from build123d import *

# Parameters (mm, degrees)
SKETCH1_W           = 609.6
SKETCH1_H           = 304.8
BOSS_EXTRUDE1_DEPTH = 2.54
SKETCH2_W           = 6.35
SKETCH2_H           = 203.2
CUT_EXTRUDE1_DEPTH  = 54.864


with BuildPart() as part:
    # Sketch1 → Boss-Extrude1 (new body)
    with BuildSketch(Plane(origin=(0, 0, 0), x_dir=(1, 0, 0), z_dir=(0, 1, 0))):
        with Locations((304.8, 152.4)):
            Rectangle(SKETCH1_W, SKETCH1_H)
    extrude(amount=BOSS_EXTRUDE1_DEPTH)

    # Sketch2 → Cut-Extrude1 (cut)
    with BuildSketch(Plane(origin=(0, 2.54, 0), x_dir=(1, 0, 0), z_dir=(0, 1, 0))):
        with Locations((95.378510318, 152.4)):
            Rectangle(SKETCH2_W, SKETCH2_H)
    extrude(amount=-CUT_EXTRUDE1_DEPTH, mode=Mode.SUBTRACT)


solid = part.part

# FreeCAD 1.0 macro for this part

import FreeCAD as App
import Part
import Sketcher
Q = App.Units.Quantity

doc = App.newDocument("Part")
params = doc.addObject("Spreadsheet::Sheet", "Params")
for row, (alias, value) in enumerate([
    ("sketch1_width", "24 in"),
    ("sketch1_height", "12 in"),
    ("pad1_length", "0.1 in"),
    ("sketch2_height", "8 in"),
    ("sketch2_width", "0.25 in"),
    ("pocket1_length", "2.16 in"),
], start=1):
    params.set(f"A{row}", alias)
    params.set(f"B{row}", "=" + value)
    params.setAlias(f"B{row}", alias)

body = doc.addObject("PartDesign::Body", "Body")

# Sketch on XZ plane
sketch1 = body.newObject("Sketcher::SketchObject", "Sketch")
sketch1.AttachmentSupport = (doc.getObject("XZ_Plane"), [""])
sketch1.MapMode = "FlatFace"
sketch1.addGeometry(Part.LineSegment(App.Vector(0, -304.8, 0), App.Vector(0, 0, 0)), False)
sketch1.addGeometry(Part.LineSegment(App.Vector(0, 0, 0), App.Vector(609.6, 0, 0)), False)
sketch1.addGeometry(Part.LineSegment(App.Vector(609.6, 0, 0), App.Vector(609.6, -304.8, 0)), False)
sketch1.addGeometry(Part.LineSegment(App.Vector(609.6, -304.8, 0), App.Vector(0, -304.8, 0)), False)
sketch1.addConstraint(Sketcher.Constraint("Coincident", 0, 2, 1, 1))
sketch1.addConstraint(Sketcher.Constraint("Coincident", 1, 2, 2, 1))
sketch1.addConstraint(Sketcher.Constraint("Coincident", 2, 2, 3, 1))
sketch1.addConstraint(Sketcher.Constraint("Coincident", 3, 2, 0, 1))
sketch1.addConstraint(Sketcher.Constraint("Vertical", 0))
sketch1.addConstraint(Sketcher.Constraint("Horizontal", 1))
sketch1.addConstraint(Sketcher.Constraint("Vertical", 2))
sketch1.addConstraint(Sketcher.Constraint("Horizontal", 3))
sketch1.addConstraint(Sketcher.Constraint("Coincident", 0, 2, -1, 1))
sketch1.addConstraint(Sketcher.Constraint("DistanceX", 1, 1, 1, 2, Q("24 in")))
sketch1.addConstraint(Sketcher.Constraint("DistanceY", 0, 1, 0, 2, Q("12 in")))
sketch1.setExpression("Constraints[9]", "Params.sketch1_width")
sketch1.setExpression("Constraints[10]", "Params.sketch1_height")
pad1 = body.newObject("PartDesign::Pad", "Pad")
pad1.Profile = sketch1
pad1.setExpression("Length", "Params.pad1_length")
pad1.Reversed = True

# Sketch on XZ plane
sketch2 = body.newObject("Sketcher::SketchObject", "Sketch001")
sketch2.AttachmentSupport = (doc.getObject("XZ_Plane"), [""])
sketch2.MapMode = "FlatFace"
sketch2.AttachmentOffset = App.Placement(App.Vector(0, 0, -0.1 * 25.4), App.Rotation())
sketch2.addGeometry(Part.LineSegment(App.Vector(92.20351, -254, 0), App.Vector(92.20351, -50.8, 0)), False)
sketch2.addGeometry(Part.LineSegment(App.Vector(92.20351, -50.8, 0), App.Vector(98.55351, -50.8, 0)), False)
sketch2.addGeometry(Part.LineSegment(App.Vector(98.55351, -50.8, 0), App.Vector(98.55351, -254, 0)), False)
sketch2.addGeometry(Part.LineSegment(App.Vector(98.55351, -254, 0), App.Vector(92.20351, -254, 0)), False)
sketch2.addConstraint(Sketcher.Constraint("Coincident", 0, 2, 1, 1))
sketch2.addConstraint(Sketcher.Constraint("Coincident", 1, 2, 2, 1))
sketch2.addConstraint(Sketcher.Constraint("Coincident", 2, 2, 3, 1))
sketch2.addConstraint(Sketcher.Constraint("Coincident", 3, 2, 0, 1))
sketch2.addConstraint(Sketcher.Constraint("Vertical", 0))
sketch2.addConstraint(Sketcher.Constraint("Horizontal", 1))
sketch2.addConstraint(Sketcher.Constraint("Vertical", 2))
sketch2.addConstraint(Sketcher.Constraint("Horizontal", 3))
sketch2.addConstraint(Sketcher.Constraint("DistanceY", 0, 1, 0, 2, Q("8 in")))
sketch2.addConstraint(Sketcher.Constraint("DistanceY", 0, 2, -1, 1, Q("2 in")))
sketch2.addConstraint(Sketcher.Constraint("DistanceX", 1, 1, 1, 2, Q("0.25 in")))
sketch2.addConstraint(Sketcher.Constraint("DistanceX", -1, 1, 0, 2, Q("92.20351 mm")))
sketch2.setExpression("Constraints[8]", "Params.sketch2_height")
sketch2.setExpression("Constraints[10]", "Params.sketch2_width")
pocket1 = body.newObject("PartDesign::Pocket", "Pocket")
pocket1.Profile = sketch2
pocket1.setExpression("Length", "Params.pocket1_length")
pocket1.Reversed = True

doc.recompute()
